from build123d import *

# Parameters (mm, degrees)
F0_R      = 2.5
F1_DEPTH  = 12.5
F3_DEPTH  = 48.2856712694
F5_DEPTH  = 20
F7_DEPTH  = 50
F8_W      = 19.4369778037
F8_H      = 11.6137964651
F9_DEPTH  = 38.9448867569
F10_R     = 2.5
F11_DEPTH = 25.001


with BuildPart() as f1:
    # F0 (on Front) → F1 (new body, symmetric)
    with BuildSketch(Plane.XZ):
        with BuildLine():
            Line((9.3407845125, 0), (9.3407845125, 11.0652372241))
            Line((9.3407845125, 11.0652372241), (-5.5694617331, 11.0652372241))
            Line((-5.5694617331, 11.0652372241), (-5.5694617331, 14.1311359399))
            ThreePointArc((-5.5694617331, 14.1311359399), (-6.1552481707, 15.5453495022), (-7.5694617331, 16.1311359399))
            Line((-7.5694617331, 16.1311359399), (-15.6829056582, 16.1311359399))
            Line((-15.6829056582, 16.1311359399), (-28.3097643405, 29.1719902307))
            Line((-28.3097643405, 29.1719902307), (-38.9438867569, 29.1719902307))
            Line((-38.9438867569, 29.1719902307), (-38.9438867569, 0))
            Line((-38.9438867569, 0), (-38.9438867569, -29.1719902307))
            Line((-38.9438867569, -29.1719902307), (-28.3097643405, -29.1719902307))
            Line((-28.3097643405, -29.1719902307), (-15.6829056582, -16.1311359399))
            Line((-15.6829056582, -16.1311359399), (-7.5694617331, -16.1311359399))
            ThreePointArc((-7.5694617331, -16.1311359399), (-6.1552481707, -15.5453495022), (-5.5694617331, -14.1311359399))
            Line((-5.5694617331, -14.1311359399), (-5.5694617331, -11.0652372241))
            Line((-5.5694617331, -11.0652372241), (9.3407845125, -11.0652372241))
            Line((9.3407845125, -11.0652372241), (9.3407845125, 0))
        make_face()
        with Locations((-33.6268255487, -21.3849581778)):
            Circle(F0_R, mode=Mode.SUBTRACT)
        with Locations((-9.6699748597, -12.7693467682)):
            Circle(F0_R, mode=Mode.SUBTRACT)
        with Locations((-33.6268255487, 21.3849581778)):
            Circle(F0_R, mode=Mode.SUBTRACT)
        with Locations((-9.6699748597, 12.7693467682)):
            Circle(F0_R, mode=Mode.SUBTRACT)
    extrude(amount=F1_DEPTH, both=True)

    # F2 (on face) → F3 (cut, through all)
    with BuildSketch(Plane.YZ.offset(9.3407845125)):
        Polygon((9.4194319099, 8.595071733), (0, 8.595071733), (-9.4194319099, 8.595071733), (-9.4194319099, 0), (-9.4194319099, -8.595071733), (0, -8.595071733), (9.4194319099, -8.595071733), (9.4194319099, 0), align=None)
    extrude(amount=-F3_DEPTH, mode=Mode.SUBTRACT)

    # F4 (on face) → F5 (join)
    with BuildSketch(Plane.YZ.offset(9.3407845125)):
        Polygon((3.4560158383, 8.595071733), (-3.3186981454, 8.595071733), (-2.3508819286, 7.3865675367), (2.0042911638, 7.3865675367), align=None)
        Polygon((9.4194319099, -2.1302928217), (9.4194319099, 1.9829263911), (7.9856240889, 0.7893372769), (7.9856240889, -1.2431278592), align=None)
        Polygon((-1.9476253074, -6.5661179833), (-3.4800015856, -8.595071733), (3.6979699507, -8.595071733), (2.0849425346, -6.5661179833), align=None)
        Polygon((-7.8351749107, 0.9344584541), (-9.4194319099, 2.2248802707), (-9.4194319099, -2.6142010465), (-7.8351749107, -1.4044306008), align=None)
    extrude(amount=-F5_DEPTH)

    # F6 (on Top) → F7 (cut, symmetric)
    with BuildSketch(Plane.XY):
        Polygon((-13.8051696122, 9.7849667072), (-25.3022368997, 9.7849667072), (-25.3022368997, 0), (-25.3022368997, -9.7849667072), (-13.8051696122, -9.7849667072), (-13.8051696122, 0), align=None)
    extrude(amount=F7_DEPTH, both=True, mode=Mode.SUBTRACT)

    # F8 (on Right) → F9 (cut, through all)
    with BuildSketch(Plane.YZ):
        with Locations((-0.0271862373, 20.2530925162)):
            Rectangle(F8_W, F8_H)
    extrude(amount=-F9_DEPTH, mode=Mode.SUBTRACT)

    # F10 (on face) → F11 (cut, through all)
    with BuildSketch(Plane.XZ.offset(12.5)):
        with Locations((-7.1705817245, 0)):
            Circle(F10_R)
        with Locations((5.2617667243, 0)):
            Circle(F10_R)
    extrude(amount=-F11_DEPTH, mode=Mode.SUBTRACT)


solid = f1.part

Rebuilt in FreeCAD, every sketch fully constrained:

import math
import FreeCAD as App
import Part
import Sketcher
from FreeCAD import Vector


def add_polygon(sketch, points):
    """Adds a closed chain of lines whose ends are joined by coincident constraints."""
    first, n = sketch.GeometryCount, len(points)
    for a, b in zip(points, points[1:] + points[:1]):
        sketch.addGeometry(Part.LineSegment(App.Vector(*a, 0), App.Vector(*b, 0)), False)
    for i in range(n):
        sketch.addConstraint(Sketcher.Constraint("Coincident", first + i, 2, first + (i + 1) % n, 1))

doc = App.newDocument("Part")
body = doc.addObject("PartDesign::Body", "Body")

# Sketch on XZ plane
sketch1 = body.newObject("Sketcher::SketchObject", "Sketch")
sketch1.AttachmentSupport = (doc.getObject("XZ_Plane"), [""])
sketch1.MapMode = "FlatFace"
sketch1.addGeometry(Part.LineSegment(Vector(9.340785, 11.065237, 0), Vector(-5.569462, 11.065237, 0)), False)
sketch1.addGeometry(Part.LineSegment(Vector(-5.569462, 11.065237, 0), Vector(-5.569462, 14.131136, 0)), False)
sketch1.addGeometry(Part.ArcOfCircle(Part.Circle(Vector(-7.569462, 14.131136, 0), Vector(0, 0, 1), 2), math.radians(0), math.radians(90)), False)
sketch1.addGeometry(Part.LineSegment(Vector(-7.569462, 16.131136, 0), Vector(-15.682906, 16.131136, 0)), False)
sketch1.addGeometry(Part.LineSegment(Vector(-15.682906, 16.131136, 0), Vector(-28.309764, 29.17199, 0)), False)
sketch1.addGeometry(Part.LineSegment(Vector(-28.309764, 29.17199, 0), Vector(-38.943887, 29.17199, 0)), False)
sketch1.addGeometry(Part.LineSegment(Vector(-38.943887, 29.17199, 0), Vector(-38.943887, -29.17199, 0)), False)
sketch1.addGeometry(Part.LineSegment(Vector(-38.943887, -29.17199, 0), Vector(-28.309764, -29.17199, 0)), False)
sketch1.addGeometry(Part.LineSegment(Vector(-28.309764, -29.17199, 0), Vector(-15.682906, -16.131136, 0)), False)
sketch1.addGeometry(Part.LineSegment(Vector(-15.682906, -16.131136, 0), Vector(-7.569462, -16.131136, 0)), False)
sketch1.addGeometry(Part.ArcOfCircle(Part.Circle(Vector(-7.569462, -14.131136, 0), Vector(0, 0, 1), 2), math.radians(-90), math.radians(0)), False)
sketch1.addGeometry(Part.LineSegment(Vector(-5.569462, -14.131136, 0), Vector(-5.569462, -11.065237, 0)), False)
sketch1.addGeometry(Part.LineSegment(Vector(-5.569462, -11.065237, 0), Vector(9.340785, -11.065237, 0)), False)
sketch1.addGeometry(Part.LineSegment(Vector(9.340785, -11.065237, 0), Vector(9.340785, 11.065237, 0)), False)
sketch1.addGeometry(Part.Circle(Vector(-33.626826, -21.384958, 0), Vector(0, 0, 1), 2.5), False)
sketch1.addGeometry(Part.Circle(Vector(-9.669975, -12.769347, 0), Vector(0, 0, 1), 2.5), False)
sketch1.addGeometry(Part.Circle(Vector(-33.626826, 21.384958, 0), Vector(0, 0, 1), 2.5), False)
sketch1.addGeometry(Part.Circle(Vector(-9.669975, 12.769347, 0), Vector(0, 0, 1), 2.5), False)
sketch1.addConstraint(Sketcher.Constraint("Coincident", 0, 2, 1, 1))
sketch1.addConstraint(Sketcher.Constraint("Tangent", 1, 2, 2, 1))
sketch1.addConstraint(Sketcher.Constraint("Tangent", 2, 2, 3, 1))
sketch1.addConstraint(Sketcher.Constraint("Coincident", 3, 2, 4, 1))
sketch1.addConstraint(Sketcher.Constraint("Coincident", 4, 2, 5, 1))
sketch1.addConstraint(Sketcher.Constraint("Coincident", 5, 2, 6, 1))
sketch1.addConstraint(Sketcher.Constraint("Coincident", 6, 2, 7, 1))
sketch1.addConstraint(Sketcher.Constraint("Coincident", 7, 2, 8, 1))
sketch1.addConstraint(Sketcher.Constraint("Coincident", 8, 2, 9, 1))
sketch1.addConstraint(Sketcher.Constraint("Tangent", 9, 2, 10, 1))
sketch1.addConstraint(Sketcher.Constraint("Tangent", 10, 2, 11, 1))
sketch1.addConstraint(Sketcher.Constraint("Coincident", 11, 2, 12, 1))
sketch1.addConstraint(Sketcher.Constraint("Coincident", 12, 2, 13, 1))
sketch1.addConstraint(Sketcher.Constraint("Coincident", 13, 2, 0, 1))
sketch1.addConstraint(Sketcher.Constraint("Horizontal", 0))
sketch1.addConstraint(Sketcher.Constraint("Vertical", 1))
sketch1.addConstraint(Sketcher.Constraint("Horizontal", 3))
sketch1.addConstraint(Sketcher.Constraint("Horizontal", 5))
sketch1.addConstraint(Sketcher.Constraint("Vertical", 6))
sketch1.addConstraint(Sketcher.Constraint("Horizontal", 7))
sketch1.addConstraint(Sketcher.Constraint("Horizontal", 9))
sketch1.addConstraint(Sketcher.Constraint("Vertical", 11))
sketch1.addConstraint(Sketcher.Constraint("Horizontal", 12))
sketch1.addConstraint(Sketcher.Constraint("Vertical", 13))
sketch1.addConstraint(Sketcher.Constraint("Equal", 2, 10))
sketch1.addConstraint(Sketcher.Constraint("Equal", 14, 15))
sketch1.addConstraint(Sketcher.Constraint("Equal", 15, 16))
sketch1.addConstraint(Sketcher.Constraint("Equal", 16, 17))
sketch1.addConstraint(Sketcher.Constraint("Symmetric", 2, 3, 10, 3, -1))
sketch1.addConstraint(Sketcher.Constraint("Symmetric", 14, 3, 16, 3, -1))
sketch1.addConstraint(Sketcher.Constraint("Symmetric", 15, 3, 17, 3, -1))
sketch1.addConstraint(Sketcher.Constraint("Symmetric", 4, 2, 7, 2, -1))
sketch1.addConstraint(Sketcher.Constraint("Vertical", 3, 2, 8, 2))
sketch1.addConstraint(Sketcher.Constraint("Equal", 1, 11))
sketch1.addConstraint(Sketcher.Constraint("Diameter", 14, 5.0))
sketch1.addConstraint(Sketcher.Constraint("Radius", 2, 2.0))
sketch1.addConstraint(Sketcher.Constraint("DistanceY", 1, 1, 1, 2, 3.065899))
sketch1.addConstraint(Sketcher.Constraint("DistanceY", 6, 2, 6, 1, 58.34398))
sketch1.addConstraint(Sketcher.Constraint("DistanceX", 0, 2, 0, 1, 14.910246))
sketch1.addConstraint(Sketcher.Constraint("DistanceX", 3, 2, 3, 1, 8.113444))
sketch1.addConstraint(Sketcher.Constraint("DistanceX", 5, 2, 5, 1, 10.634122))
sketch1.addConstraint(Sketcher.Constraint("DistanceY", 13, 1, 13, 2, 22.130474))
sketch1.addConstraint(Sketcher.Constraint("DistanceX", 2, 3, -1, 1, 7.569462))
sketch1.addConstraint(Sketcher.Constraint("DistanceY", 14, 3, -1, 1, 21.384958))
sketch1.addConstraint(Sketcher.Constraint("DistanceY", 10, 3, 15, 3, 1.361789))
sketch1.addConstraint(Sketcher.Constraint("DistanceX", 14, 3, 15, 3, 23.956851))
sketch1.addConstraint(Sketcher.Constraint("DistanceX", 3, 2, 17, 3, 6.012931))
sketch1.addConstraint(Sketcher.Constraint("DistanceX", 16, 3, 4, 2, 5.317061))
pad1 = body.newObject("PartDesign::Pad", "Pad")
pad1.Profile = sketch1
pad1.Length = 25
pad1.Midplane = True

# Sketch on YZ plane
sketch2 = body.newObject("Sketcher::SketchObject", "Sketch001")
sketch2.AttachmentSupport = (doc.getObject("YZ_Plane"), [""])
sketch2.MapMode = "FlatFace"
sketch2.AttachmentOffset = App.Placement(Vector(0, 0, 9.340785), App.Rotation())
add_polygon(sketch2, [(9.419432, 8.595072), (-9.419432, 8.595072), (-9.419432, -8.595072), (9.419432, -8.595072)])  # lines 0-3
sketch2.addConstraint(Sketcher.Constraint("Horizontal", 0))
sketch2.addConstraint(Sketcher.Constraint("Vertical", 1))
sketch2.addConstraint(Sketcher.Constraint("Horizontal", 2))
sketch2.addConstraint(Sketcher.Constraint("Vertical", 3))
sketch2.addConstraint(Sketcher.Constraint("Symmetric", 0, 2, 2, 2, -1, 1))
sketch2.addConstraint(Sketcher.Constraint("DistanceX", 0, 2, 0, 1, 18.838864))
sketch2.addConstraint(Sketcher.Constraint("DistanceY", 1, 2, 1, 1, 17.190143))
pocket1 = body.newObject("PartDesign::Pocket", "Pocket")
pocket1.Profile = sketch2
pocket1.Type = "ThroughAll"

# Sketch on YZ plane
sketch3 = body.newObject("Sketcher::SketchObject", "Sketch002")
sketch3.AttachmentSupport = (doc.getObject("YZ_Plane"), [""])
sketch3.MapMode = "FlatFace"
sketch3.AttachmentOffset = App.Placement(Vector(0, 0, 9.340785), App.Rotation())
add_polygon(sketch3, [(3.456016, 8.595072), (-3.318698, 8.595072), (-2.350882, 7.386568), (2.004291, 7.386568)])  # lines 0-3
add_polygon(sketch3, [(9.419432, -2.130293), (9.419432, 1.982926), (7.985624, 0.789337), (7.985624, -1.243128)])  # lines 4-7
add_polygon(sketch3, [(-1.947625, -6.566118), (-3.480002, -8.595072), (3.69797, -8.595072), (2.084943, -6.566118)])  # lines 8-11
add_polygon(sketch3, [(-7.835175, 0.934458), (-9.419432, 2.22488), (-9.419432, -2.614201), (-7.835175, -1.404431)])  # lines 12-15
sketch3.addConstraint(Sketcher.Constraint("Horizontal", 0))
sketch3.addConstraint(Sketcher.Constraint("Horizontal", 2))
sketch3.addConstraint(Sketcher.Constraint("Vertical", 4))
sketch3.addConstraint(Sketcher.Constraint("Vertical", 6))
sketch3.addConstraint(Sketcher.Constraint("Horizontal", 9))
sketch3.addConstraint(Sketcher.Constraint("Horizontal", 11))
sketch3.addConstraint(Sketcher.Constraint("Vertical", 13))
sketch3.addConstraint(Sketcher.Constraint("Vertical", 15))
sketch3.addConstraint(Sketcher.Constraint("Parallel", 3, 5))
sketch3.addConstraint(Sketcher.Constraint("DistanceX", 8, 2, -1, 1, 3.480002))
sketch3.addConstraint(Sketcher.Constraint("DistanceY", 8, 2, 4, 2, 10.577998))
sketch3.addConstraint(Sketcher.Constraint("DistanceY", 11, 2, 12, 2, 8.790998))
sketch3.addConstraint(Sketcher.Constraint("DistanceY", 14, 2, 1, 2, 8.790998))
sketch3.addConstraint(Sketcher.Constraint("Distance", 5, 1.865599))
sketch3.addConstraint(Sketcher.Constraint("DistanceX", 9, 1, 9, 2, 7.177972))
sketch3.addConstraint(Sketcher.Constraint("DistanceY", 4, 1, 4, 2, 4.113219))
sketch3.addConstraint(Sketcher.Constraint("DistanceY", 13, 2, 13, 1, 4.839081))
sketch3.addConstraint(Sketcher.Constraint("DistanceY", 15, 1, 15, 2, 2.338889))
sketch3.addConstraint(Sketcher.Constraint("DistanceX", 0, 2, -1, 1, 3.318698))
sketch3.addConstraint(Sketcher.Constraint("DistanceY", 13, 2, -1, 1, 2.614201))
sketch3.addConstraint(Sketcher.Constraint("DistanceY", 6, 2, 3, 2, 9.8382))
sketch3.addConstraint(Sketcher.Constraint("Distance", 3, 1.888912))
sketch3.addConstraint(Sketcher.Constraint("Distance", 7, 1.68608))
sketch3.addConstraint(Sketcher.Constraint("Distance", 10, 2.592009))
sketch3.addConstraint(Sketcher.Constraint("DistanceX", 0, 2, 0, 1, 6.774714))
sketch3.addConstraint(Sketcher.Constraint("DistanceX", 2, 1, 2, 2, 4.355173))
sketch3.addConstraint(Sketcher.Constraint("DistanceX", 11, 2, 11, 1, 4.032568))
sketch3.addConstraint(Sketcher.Constraint("DistanceY", 6, 2, 6, 1, 2.032465))
sketch3.addConstraint(Sketcher.Constraint("DistanceY", -1, 1, 0, 2, 8.595072))
sketch3.addConstraint(Sketcher.Constraint("DistanceX", -1, 1, 4, 2, 9.419432))
sketch3.addConstraint(Sketcher.Constraint("DistanceX", 12, 2, -1, 1, 9.419432))
sketch3.addConstraint(Sketcher.Constraint("DistanceX", 14, 2, 11, 2, 5.88755))
pad2 = body.newObject("PartDesign::Pad", "Pad001")
pad2.Profile = sketch3
pad2.Length = 20
pad2.Reversed = True

# Sketch on XY plane
sketch4 = body.newObject("Sketcher::SketchObject", "Sketch003")
sketch4.AttachmentSupport = (doc.getObject("XY_Plane"), [""])
sketch4.MapMode = "FlatFace"
add_polygon(sketch4, [(-13.80517, 9.784967), (-25.302237, 9.784967), (-25.302237, -9.784967), (-13.80517, -9.784967)])  # lines 0-3
sketch4.addConstraint(Sketcher.Constraint("Horizontal", 0))
sketch4.addConstraint(Sketcher.Constraint("Vertical", 1))
sketch4.addConstraint(Sketcher.Constraint("Horizontal", 2))
sketch4.addConstraint(Sketcher.Constraint("Vertical", 3))
sketch4.addConstraint(Sketcher.Constraint("DistanceX", 0, 2, 0, 1, 11.497067))
sketch4.addConstraint(Sketcher.Constraint("DistanceY", 1, 2, 1, 1, 19.569933))
sketch4.addConstraint(Sketcher.Constraint("DistanceX", 2, 2, -1, 1, 13.80517))
sketch4.addConstraint(Sketcher.Constraint("DistanceY", -1, 1, 0, 2, 9.784967))
pocket2 = body.newObject("PartDesign::Pocket", "Pocket001")
pocket2.Profile = sketch4
pocket2.Length = 100
pocket2.Midplane = True

# Sketch on YZ plane
sketch5 = body.newObject("Sketcher::SketchObject", "Sketch004")
sketch5.AttachmentSupport = (doc.getObject("YZ_Plane"), [""])
sketch5.MapMode = "FlatFace"
add_polygon(sketch5, [(-9.745675, 26.059991), (-9.745675, 14.446194), (9.691303, 14.446194), (9.691303, 26.059991)])  # lines 0-3
sketch5.addConstraint(Sketcher.Constraint("Vertical", 0))
sketch5.addConstraint(Sketcher.Constraint("Horizontal", 1))
sketch5.addConstraint(Sketcher.Constraint("Vertical", 2))
sketch5.addConstraint(Sketcher.Constraint("Horizontal", 3))
sketch5.addConstraint(Sketcher.Constraint("DistanceX", 1, 1, 1, 2, 19.436978))
sketch5.addConstraint(Sketcher.Constraint("DistanceY", 0, 2, 0, 1, 11.613796))
sketch5.addConstraint(Sketcher.Constraint("DistanceY", -1, 1, 2, 2, 26.059991))
sketch5.addConstraint(Sketcher.Constraint("DistanceX", 0, 2, -1, 1, 9.745675))
pocket3 = body.newObject("PartDesign::Pocket", "Pocket002")
pocket3.Profile = sketch5
pocket3.Type = "ThroughAll"

# Sketch on XZ plane
sketch6 = body.newObject("Sketcher::SketchObject", "Sketch005")
sketch6.AttachmentSupport = (doc.getObject("XZ_Plane"), [""])
sketch6.MapMode = "FlatFace"
sketch6.AttachmentOffset = App.Placement(Vector(0, 0, 12.5), App.Rotation())
sketch6.addGeometry(Part.Circle(Vector(-7.170582, 0, 0), Vector(0, 0, 1), 2.5), False)
sketch6.addGeometry(Part.Circle(Vector(5.261767, 0, 0), Vector(0, 0, 1), 2.5), False)
sketch6.addConstraint(Sketcher.Constraint("Equal", 0, 1))
sketch6.addConstraint(Sketcher.Constraint("PointOnObject", 0, 3, -1))
sketch6.addConstraint(Sketcher.Constraint("PointOnObject", 1, 3, -1))
sketch6.addConstraint(Sketcher.Constraint("Diameter", 0, 5.0))
sketch6.addConstraint(Sketcher.Constraint("DistanceX", 0, 3, -1, 1, 7.170582))
sketch6.addConstraint(Sketcher.Constraint("DistanceX", 0, 3, 1, 3, 12.432348))
pocket4 = body.newObject("PartDesign::Pocket", "Pocket003")
pocket4.Profile = sketch6
pocket4.Type = "ThroughAll"

doc.recompute()
